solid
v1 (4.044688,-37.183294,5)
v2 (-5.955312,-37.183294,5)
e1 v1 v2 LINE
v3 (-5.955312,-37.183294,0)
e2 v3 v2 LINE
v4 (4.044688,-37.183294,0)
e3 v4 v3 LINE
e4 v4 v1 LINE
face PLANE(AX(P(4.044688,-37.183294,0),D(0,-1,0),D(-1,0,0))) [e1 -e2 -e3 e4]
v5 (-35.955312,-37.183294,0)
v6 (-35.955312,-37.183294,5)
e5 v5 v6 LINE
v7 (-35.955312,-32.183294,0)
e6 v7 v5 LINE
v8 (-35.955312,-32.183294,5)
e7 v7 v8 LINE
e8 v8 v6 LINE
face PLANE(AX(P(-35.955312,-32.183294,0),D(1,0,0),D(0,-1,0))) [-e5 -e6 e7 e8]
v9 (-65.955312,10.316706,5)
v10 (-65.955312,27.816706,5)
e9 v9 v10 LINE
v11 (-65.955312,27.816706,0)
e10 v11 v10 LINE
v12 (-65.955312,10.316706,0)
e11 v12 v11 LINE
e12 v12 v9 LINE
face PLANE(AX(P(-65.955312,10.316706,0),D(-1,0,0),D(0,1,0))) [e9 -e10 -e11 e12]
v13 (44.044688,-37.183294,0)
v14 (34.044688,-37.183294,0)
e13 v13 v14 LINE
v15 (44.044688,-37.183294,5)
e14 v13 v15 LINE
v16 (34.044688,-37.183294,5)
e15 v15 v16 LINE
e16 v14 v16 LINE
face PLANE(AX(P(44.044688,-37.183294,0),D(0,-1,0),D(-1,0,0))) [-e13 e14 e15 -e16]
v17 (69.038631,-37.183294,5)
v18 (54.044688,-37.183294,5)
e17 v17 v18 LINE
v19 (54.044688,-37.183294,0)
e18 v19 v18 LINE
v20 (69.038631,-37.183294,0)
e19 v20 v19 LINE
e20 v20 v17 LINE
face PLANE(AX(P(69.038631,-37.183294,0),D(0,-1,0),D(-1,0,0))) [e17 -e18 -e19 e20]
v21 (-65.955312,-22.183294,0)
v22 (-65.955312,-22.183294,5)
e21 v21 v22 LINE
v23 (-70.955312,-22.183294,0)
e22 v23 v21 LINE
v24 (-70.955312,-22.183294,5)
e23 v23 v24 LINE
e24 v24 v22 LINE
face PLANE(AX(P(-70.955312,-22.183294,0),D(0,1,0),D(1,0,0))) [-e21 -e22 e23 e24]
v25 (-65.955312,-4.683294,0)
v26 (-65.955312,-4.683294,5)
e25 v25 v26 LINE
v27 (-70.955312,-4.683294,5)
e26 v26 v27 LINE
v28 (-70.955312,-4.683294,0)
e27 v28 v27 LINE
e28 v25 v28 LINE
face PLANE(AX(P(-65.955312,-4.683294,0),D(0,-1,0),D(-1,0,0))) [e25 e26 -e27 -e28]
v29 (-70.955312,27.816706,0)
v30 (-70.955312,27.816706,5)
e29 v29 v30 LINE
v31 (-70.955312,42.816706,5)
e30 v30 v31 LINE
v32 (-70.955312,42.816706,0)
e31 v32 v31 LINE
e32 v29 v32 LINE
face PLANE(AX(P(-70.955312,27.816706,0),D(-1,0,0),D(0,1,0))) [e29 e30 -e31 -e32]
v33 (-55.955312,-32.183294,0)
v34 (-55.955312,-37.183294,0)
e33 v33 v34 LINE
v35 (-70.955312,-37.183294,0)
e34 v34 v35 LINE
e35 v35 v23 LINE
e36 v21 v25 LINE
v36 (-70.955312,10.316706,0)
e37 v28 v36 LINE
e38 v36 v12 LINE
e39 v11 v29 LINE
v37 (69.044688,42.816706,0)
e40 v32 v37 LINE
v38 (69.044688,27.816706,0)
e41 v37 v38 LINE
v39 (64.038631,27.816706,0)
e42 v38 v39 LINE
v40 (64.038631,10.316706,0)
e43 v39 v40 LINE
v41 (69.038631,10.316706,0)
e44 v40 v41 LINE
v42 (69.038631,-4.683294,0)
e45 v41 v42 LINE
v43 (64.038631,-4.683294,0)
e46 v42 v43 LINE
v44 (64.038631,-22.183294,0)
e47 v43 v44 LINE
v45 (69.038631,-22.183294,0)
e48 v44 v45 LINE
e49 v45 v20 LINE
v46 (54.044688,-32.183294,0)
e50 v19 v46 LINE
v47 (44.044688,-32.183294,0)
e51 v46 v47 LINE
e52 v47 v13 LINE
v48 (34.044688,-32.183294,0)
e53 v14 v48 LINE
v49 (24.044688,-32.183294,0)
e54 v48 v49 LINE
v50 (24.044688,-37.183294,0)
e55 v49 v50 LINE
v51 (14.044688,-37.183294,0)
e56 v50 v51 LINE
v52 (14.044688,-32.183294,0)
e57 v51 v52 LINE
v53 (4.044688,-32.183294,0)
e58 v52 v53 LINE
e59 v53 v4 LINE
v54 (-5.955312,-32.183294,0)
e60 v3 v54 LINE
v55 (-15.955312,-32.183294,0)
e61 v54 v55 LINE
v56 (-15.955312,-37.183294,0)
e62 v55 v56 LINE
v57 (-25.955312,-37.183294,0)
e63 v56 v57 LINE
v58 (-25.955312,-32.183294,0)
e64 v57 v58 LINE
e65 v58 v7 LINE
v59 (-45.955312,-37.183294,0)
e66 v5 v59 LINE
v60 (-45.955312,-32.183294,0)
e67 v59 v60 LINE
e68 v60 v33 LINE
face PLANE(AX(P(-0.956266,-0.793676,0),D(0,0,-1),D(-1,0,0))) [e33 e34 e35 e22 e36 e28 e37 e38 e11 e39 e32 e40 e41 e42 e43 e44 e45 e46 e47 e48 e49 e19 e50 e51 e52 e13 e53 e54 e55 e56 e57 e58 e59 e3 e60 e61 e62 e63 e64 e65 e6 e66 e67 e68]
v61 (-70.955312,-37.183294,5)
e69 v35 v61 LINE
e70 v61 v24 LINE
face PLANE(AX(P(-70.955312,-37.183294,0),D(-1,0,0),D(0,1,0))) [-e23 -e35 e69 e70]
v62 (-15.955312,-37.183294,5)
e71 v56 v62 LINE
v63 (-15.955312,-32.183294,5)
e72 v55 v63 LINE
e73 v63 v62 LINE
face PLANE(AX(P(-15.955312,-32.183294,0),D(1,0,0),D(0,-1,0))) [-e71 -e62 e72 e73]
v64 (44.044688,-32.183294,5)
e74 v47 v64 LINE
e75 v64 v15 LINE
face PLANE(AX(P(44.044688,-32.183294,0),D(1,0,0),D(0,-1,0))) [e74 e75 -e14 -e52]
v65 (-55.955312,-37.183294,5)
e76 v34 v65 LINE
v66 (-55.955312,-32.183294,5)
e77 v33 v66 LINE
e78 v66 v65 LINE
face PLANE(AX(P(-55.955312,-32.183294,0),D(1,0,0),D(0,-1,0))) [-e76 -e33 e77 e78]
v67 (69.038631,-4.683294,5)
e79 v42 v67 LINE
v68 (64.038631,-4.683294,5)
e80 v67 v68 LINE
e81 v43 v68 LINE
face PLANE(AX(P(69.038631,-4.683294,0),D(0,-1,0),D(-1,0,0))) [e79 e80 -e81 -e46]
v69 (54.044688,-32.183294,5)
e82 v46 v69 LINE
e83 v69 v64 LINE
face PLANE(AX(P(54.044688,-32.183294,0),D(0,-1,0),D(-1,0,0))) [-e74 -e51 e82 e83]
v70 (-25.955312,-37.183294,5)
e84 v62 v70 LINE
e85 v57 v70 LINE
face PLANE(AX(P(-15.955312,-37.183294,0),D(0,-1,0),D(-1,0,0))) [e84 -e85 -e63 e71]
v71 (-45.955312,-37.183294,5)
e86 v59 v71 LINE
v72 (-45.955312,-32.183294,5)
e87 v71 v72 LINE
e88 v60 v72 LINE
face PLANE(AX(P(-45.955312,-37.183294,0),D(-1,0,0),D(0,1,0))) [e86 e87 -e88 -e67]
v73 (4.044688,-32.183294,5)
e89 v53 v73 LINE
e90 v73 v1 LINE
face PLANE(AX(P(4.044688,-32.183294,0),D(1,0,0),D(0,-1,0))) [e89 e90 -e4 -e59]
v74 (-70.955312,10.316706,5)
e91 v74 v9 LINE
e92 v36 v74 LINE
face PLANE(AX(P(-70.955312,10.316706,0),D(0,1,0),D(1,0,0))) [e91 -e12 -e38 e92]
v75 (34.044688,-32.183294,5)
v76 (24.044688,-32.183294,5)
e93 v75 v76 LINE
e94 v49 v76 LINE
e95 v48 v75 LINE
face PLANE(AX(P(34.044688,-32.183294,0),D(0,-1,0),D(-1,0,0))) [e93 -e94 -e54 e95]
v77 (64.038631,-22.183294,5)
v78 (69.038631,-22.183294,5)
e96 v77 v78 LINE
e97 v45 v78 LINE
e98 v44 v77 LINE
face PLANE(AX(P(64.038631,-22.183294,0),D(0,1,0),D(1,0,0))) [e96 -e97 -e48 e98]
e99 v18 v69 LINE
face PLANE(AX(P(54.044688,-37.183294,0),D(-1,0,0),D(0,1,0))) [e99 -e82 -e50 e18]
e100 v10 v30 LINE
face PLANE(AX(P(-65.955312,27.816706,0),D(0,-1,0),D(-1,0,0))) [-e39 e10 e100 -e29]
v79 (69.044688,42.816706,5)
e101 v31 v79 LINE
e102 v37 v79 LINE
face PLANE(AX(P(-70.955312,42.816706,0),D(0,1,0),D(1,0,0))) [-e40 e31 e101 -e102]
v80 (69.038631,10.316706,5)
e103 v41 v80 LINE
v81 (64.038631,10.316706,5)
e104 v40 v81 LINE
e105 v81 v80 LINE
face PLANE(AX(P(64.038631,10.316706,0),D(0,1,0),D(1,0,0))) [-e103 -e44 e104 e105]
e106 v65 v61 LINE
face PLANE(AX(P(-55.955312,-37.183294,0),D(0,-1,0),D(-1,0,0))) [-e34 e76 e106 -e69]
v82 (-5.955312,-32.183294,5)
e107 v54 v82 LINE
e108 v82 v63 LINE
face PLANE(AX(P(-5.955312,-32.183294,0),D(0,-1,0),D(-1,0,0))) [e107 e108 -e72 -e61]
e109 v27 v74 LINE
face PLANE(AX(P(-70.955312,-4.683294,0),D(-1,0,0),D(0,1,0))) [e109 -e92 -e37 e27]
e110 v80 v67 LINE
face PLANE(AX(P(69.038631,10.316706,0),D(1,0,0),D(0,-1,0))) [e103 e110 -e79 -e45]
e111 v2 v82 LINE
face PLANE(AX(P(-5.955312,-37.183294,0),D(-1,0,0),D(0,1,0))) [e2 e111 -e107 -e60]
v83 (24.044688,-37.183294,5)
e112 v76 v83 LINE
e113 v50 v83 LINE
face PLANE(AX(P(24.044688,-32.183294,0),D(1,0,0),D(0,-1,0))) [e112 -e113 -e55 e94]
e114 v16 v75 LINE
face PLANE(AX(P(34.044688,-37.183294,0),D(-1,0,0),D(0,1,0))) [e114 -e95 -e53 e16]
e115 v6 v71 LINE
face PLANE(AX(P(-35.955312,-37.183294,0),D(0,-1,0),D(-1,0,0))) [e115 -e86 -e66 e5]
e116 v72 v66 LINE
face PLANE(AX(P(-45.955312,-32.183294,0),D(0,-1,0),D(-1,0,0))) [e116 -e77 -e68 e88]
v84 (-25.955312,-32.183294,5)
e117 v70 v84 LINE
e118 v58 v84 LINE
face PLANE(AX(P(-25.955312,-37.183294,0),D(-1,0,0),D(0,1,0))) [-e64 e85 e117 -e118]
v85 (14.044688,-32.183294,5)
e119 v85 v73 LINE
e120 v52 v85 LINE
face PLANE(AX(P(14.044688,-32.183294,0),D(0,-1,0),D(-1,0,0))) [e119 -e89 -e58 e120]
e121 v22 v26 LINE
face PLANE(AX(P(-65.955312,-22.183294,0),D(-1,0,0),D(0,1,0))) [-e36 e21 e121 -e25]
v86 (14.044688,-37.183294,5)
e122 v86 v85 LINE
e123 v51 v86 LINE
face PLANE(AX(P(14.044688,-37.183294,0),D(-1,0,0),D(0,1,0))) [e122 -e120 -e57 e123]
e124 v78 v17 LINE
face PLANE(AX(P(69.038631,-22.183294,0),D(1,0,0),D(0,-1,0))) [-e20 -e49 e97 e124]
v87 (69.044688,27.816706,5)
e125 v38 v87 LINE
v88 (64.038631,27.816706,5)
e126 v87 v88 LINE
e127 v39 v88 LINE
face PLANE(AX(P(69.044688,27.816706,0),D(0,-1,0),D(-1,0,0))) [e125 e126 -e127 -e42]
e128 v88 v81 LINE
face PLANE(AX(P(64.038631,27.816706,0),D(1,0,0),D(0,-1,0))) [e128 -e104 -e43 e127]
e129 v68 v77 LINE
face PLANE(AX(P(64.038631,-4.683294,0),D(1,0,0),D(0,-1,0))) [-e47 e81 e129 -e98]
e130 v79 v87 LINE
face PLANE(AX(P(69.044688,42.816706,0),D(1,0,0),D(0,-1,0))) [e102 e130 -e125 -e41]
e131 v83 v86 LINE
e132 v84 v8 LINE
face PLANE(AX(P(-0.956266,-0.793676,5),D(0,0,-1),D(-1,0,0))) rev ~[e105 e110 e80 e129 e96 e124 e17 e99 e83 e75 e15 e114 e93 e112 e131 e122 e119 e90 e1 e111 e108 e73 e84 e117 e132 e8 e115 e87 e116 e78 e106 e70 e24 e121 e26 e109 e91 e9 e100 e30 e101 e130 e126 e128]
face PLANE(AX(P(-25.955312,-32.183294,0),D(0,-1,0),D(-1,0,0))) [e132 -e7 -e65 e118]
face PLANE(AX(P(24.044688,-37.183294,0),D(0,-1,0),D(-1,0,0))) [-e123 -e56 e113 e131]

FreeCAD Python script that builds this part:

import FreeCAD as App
import Part
import Sketcher

V = App.Vector


def add_polygon(sketch, points):
    """Adds a closed chain of lines whose ends are joined by coincident constraints."""
    first, n = sketch.GeometryCount, len(points)
    for a, b in zip(points, points[1:] + points[:1]):
        sketch.addGeometry(Part.LineSegment(App.Vector(*a, 0), App.Vector(*b, 0)), False)
    for i in range(n):
        sketch.addConstraint(Sketcher.Constraint("Coincident", first + i, 2, first + (i + 1) % n, 1))

doc = App.newDocument("Part")
body = doc.addObject("PartDesign::Body", "Body")

# Sketch on XY plane
sketch1 = body.newObject("Sketcher::SketchObject", "Sketch")
sketch1.AttachmentSupport = (doc.getObject("XY_Plane"), [""])
sketch1.MapMode = "FlatFace"
add_polygon(sketch1, [(64, -5), (69, -5), (69, 10), (64, 10), (64, 28), (69, 28), (69, 43), (-71, 43), (-71, 28), (-66, 28), (-66, 10), (-71, 10), (-71, -5), (-66, -5), (-66, -22), (-71, -22), (-71, -37), (-56, -37), (-56, -32), (-46, -32), (-46, -37), (-36, -37), (-36, -32), (-26, -32), (-26, -37), (-16, -37), (-16, -32), (-6, -32), (-6, -37), (4, -37), (4, -32), (14, -32), (14, -37), (24, -37), (24, -32), (34, -32), (34, -37), (44, -37), (44, -32), (54, -32), (54, -37), (69, -37), (69, -22), (64, -22)])  # lines 0-43
sketch1.addConstraint(Sketcher.Constraint("Horizontal", 0))
sketch1.addConstraint(Sketcher.Constraint("Vertical", 1))
sketch1.addConstraint(Sketcher.Constraint("Horizontal", 2))
sketch1.addConstraint(Sketcher.Constraint("Vertical", 3))
sketch1.addConstraint(Sketcher.Constraint("Horizontal", 4))
sketch1.addConstraint(Sketcher.Constraint("Vertical", 5))
sketch1.addConstraint(Sketcher.Constraint("Horizontal", 6))
sketch1.addConstraint(Sketcher.Constraint("Vertical", 7))
sketch1.addConstraint(Sketcher.Constraint("Horizontal", 8))
sketch1.addConstraint(Sketcher.Constraint("Vertical", 9))
sketch1.addConstraint(Sketcher.Constraint("Horizontal", 10))
sketch1.addConstraint(Sketcher.Constraint("Vertical", 11))
sketch1.addConstraint(Sketcher.Constraint("Horizontal", 12))
sketch1.addConstraint(Sketcher.Constraint("Vertical", 13))
sketch1.addConstraint(Sketcher.Constraint("Horizontal", 14))
sketch1.addConstraint(Sketcher.Constraint("Vertical", 15))
sketch1.addConstraint(Sketcher.Constraint("Horizontal", 16))
sketch1.addConstraint(Sketcher.Constraint("Vertical", 17))
sketch1.addConstraint(Sketcher.Constraint("Horizontal", 18))
sketch1.addConstraint(Sketcher.Constraint("Vertical", 19))
sketch1.addConstraint(Sketcher.Constraint("Horizontal", 20))
sketch1.addConstraint(Sketcher.Constraint("Vertical", 21))
sketch1.addConstraint(Sketcher.Constraint("Horizontal", 22))
sketch1.addConstraint(Sketcher.Constraint("Vertical", 23))
sketch1.addConstraint(Sketcher.Constraint("Horizontal", 24))
sketch1.addConstraint(Sketcher.Constraint("Vertical", 25))
sketch1.addConstraint(Sketcher.Constraint("Horizontal", 26))
sketch1.addConstraint(Sketcher.Constraint("Vertical", 27))
sketch1.addConstraint(Sketcher.Constraint("Horizontal", 28))
sketch1.addConstraint(Sketcher.Constraint("Vertical", 29))
sketch1.addConstraint(Sketcher.Constraint("Horizontal", 30))
sketch1.addConstraint(Sketcher.Constraint("Vertical", 31))
sketch1.addConstraint(Sketcher.Constraint("Horizontal", 32))
sketch1.addConstraint(Sketcher.Constraint("Vertical", 33))
sketch1.addConstraint(Sketcher.Constraint("Horizontal", 34))
sketch1.addConstraint(Sketcher.Constraint("Vertical", 35))
sketch1.addConstraint(Sketcher.Constraint("Horizontal", 36))
sketch1.addConstraint(Sketcher.Constraint("Vertical", 37))
sketch1.addConstraint(Sketcher.Constraint("Horizontal", 38))
sketch1.addConstraint(Sketcher.Constraint("Vertical", 39))
sketch1.addConstraint(Sketcher.Constraint("Horizontal", 40))
sketch1.addConstraint(Sketcher.Constraint("Vertical", 41))
sketch1.addConstraint(Sketcher.Constraint("Horizontal", 42))
sketch1.addConstraint(Sketcher.Constraint("Vertical", 43))
sketch1.addConstraint(Sketcher.Constraint("Horizontal", 4, 2, 7, 2))
sketch1.addConstraint(Sketcher.Constraint("Horizontal", 2, 2, 9, 2))
sketch1.addConstraint(Sketcher.Constraint("Horizontal", 0, 2, 11, 2))
sketch1.addConstraint(Sketcher.Constraint("Horizontal", 16, 2, 19, 2))
sketch1.addConstraint(Sketcher.Constraint("Horizontal", 18, 2, 21, 2))
sketch1.addConstraint(Sketcher.Constraint("Horizontal", 20, 2, 23, 2))
sketch1.addConstraint(Sketcher.Constraint("Horizontal", 22, 2, 25, 2))
sketch1.addConstraint(Sketcher.Constraint("Horizontal", 24, 2, 27, 2))
sketch1.addConstraint(Sketcher.Constraint("Horizontal", 26, 2, 29, 2))
sketch1.addConstraint(Sketcher.Constraint("Horizontal", 28, 2, 31, 2))
sketch1.addConstraint(Sketcher.Constraint("Horizontal", 30, 2, 33, 2))
sketch1.addConstraint(Sketcher.Constraint("Horizontal", 32, 2, 35, 2))
sketch1.addConstraint(Sketcher.Constraint("Horizontal", 34, 2, 37, 2))
sketch1.addConstraint(Sketcher.Constraint("Horizontal", 36, 2, 39, 2))
sketch1.addConstraint(Sketcher.Constraint("Horizontal", 14, 2, 41, 2))
sketch1.addConstraint(Sketcher.Constraint("Vertical", 7, 2, 10, 2))
sketch1.addConstraint(Sketcher.Constraint("Vertical", 9, 2, 12, 2))
sketch1.addConstraint(Sketcher.Constraint("Vertical", 11, 2, 14, 2))
sketch1.addConstraint(Sketcher.Constraint("Vertical", 1, 2, 40, 2))
sketch1.addConstraint(Sketcher.Constraint("Vertical", 3, 2, 42, 2))
sketch1.addConstraint(Sketcher.Constraint("Equal", 2, 8))
sketch1.addConstraint(Sketcher.Constraint("Equal", 18, 20))
sketch1.addConstraint(Sketcher.Constraint("Equal", 20, 22))
sketch1.addConstraint(Sketcher.Constraint("Equal", 22, 24))
sketch1.addConstraint(Sketcher.Constraint("Equal", 24, 26))
sketch1.addConstraint(Sketcher.Constraint("Equal", 26, 28))
sketch1.addConstraint(Sketcher.Constraint("Equal", 28, 30))
sketch1.addConstraint(Sketcher.Constraint("Equal", 30, 32))
sketch1.addConstraint(Sketcher.Constraint("Equal", 32, 34))
sketch1.addConstraint(Sketcher.Constraint("Equal", 34, 36))
sketch1.addConstraint(Sketcher.Constraint("Equal", 36, 38))
sketch1.addConstraint(Sketcher.Constraint("Equal", 16, 1))
sketch1.addConstraint(Sketcher.Constraint("Equal", 1, 5))
sketch1.addConstraint(Sketcher.Constraint("Equal", 9, 13))
sketch1.addConstraint(Sketcher.Constraint("Equal", 11, 15))
sketch1.addConstraint(Sketcher.Constraint("Equal", 42, 17))
sketch1.addConstraint(Sketcher.Constraint("DistanceX", 0, 1, 0, 2, 5.0))
sketch1.addConstraint(Sketcher.Constraint("DistanceX", 6, 2, 6, 1, 140.0))
sketch1.addConstraint(Sketcher.Constraint("DistanceX", 16, 1, 16, 2, 15.0))
sketch1.addConstraint(Sketcher.Constraint("DistanceX", 18, 1, 18, 2, 10.0))
sketch1.addConstraint(Sketcher.Constraint("DistanceY", 3, 1, 3, 2, 17.5))
sketch1.addConstraint(Sketcher.Constraint("DistanceX", 4, 1, 4, 2, 5.006057))
sketch1.addConstraint(Sketcher.Constraint("DistanceX", -1, 1, 0, 2, 69.038631))
sketch1.addConstraint(Sketcher.Constraint("DistanceY", 0, 2, -1, 1, 4.683294))
pad1 = body.newObject("PartDesign::Pad", "Pad")
pad1.Profile = sketch1
pad1.Length = 5

doc.recompute()
